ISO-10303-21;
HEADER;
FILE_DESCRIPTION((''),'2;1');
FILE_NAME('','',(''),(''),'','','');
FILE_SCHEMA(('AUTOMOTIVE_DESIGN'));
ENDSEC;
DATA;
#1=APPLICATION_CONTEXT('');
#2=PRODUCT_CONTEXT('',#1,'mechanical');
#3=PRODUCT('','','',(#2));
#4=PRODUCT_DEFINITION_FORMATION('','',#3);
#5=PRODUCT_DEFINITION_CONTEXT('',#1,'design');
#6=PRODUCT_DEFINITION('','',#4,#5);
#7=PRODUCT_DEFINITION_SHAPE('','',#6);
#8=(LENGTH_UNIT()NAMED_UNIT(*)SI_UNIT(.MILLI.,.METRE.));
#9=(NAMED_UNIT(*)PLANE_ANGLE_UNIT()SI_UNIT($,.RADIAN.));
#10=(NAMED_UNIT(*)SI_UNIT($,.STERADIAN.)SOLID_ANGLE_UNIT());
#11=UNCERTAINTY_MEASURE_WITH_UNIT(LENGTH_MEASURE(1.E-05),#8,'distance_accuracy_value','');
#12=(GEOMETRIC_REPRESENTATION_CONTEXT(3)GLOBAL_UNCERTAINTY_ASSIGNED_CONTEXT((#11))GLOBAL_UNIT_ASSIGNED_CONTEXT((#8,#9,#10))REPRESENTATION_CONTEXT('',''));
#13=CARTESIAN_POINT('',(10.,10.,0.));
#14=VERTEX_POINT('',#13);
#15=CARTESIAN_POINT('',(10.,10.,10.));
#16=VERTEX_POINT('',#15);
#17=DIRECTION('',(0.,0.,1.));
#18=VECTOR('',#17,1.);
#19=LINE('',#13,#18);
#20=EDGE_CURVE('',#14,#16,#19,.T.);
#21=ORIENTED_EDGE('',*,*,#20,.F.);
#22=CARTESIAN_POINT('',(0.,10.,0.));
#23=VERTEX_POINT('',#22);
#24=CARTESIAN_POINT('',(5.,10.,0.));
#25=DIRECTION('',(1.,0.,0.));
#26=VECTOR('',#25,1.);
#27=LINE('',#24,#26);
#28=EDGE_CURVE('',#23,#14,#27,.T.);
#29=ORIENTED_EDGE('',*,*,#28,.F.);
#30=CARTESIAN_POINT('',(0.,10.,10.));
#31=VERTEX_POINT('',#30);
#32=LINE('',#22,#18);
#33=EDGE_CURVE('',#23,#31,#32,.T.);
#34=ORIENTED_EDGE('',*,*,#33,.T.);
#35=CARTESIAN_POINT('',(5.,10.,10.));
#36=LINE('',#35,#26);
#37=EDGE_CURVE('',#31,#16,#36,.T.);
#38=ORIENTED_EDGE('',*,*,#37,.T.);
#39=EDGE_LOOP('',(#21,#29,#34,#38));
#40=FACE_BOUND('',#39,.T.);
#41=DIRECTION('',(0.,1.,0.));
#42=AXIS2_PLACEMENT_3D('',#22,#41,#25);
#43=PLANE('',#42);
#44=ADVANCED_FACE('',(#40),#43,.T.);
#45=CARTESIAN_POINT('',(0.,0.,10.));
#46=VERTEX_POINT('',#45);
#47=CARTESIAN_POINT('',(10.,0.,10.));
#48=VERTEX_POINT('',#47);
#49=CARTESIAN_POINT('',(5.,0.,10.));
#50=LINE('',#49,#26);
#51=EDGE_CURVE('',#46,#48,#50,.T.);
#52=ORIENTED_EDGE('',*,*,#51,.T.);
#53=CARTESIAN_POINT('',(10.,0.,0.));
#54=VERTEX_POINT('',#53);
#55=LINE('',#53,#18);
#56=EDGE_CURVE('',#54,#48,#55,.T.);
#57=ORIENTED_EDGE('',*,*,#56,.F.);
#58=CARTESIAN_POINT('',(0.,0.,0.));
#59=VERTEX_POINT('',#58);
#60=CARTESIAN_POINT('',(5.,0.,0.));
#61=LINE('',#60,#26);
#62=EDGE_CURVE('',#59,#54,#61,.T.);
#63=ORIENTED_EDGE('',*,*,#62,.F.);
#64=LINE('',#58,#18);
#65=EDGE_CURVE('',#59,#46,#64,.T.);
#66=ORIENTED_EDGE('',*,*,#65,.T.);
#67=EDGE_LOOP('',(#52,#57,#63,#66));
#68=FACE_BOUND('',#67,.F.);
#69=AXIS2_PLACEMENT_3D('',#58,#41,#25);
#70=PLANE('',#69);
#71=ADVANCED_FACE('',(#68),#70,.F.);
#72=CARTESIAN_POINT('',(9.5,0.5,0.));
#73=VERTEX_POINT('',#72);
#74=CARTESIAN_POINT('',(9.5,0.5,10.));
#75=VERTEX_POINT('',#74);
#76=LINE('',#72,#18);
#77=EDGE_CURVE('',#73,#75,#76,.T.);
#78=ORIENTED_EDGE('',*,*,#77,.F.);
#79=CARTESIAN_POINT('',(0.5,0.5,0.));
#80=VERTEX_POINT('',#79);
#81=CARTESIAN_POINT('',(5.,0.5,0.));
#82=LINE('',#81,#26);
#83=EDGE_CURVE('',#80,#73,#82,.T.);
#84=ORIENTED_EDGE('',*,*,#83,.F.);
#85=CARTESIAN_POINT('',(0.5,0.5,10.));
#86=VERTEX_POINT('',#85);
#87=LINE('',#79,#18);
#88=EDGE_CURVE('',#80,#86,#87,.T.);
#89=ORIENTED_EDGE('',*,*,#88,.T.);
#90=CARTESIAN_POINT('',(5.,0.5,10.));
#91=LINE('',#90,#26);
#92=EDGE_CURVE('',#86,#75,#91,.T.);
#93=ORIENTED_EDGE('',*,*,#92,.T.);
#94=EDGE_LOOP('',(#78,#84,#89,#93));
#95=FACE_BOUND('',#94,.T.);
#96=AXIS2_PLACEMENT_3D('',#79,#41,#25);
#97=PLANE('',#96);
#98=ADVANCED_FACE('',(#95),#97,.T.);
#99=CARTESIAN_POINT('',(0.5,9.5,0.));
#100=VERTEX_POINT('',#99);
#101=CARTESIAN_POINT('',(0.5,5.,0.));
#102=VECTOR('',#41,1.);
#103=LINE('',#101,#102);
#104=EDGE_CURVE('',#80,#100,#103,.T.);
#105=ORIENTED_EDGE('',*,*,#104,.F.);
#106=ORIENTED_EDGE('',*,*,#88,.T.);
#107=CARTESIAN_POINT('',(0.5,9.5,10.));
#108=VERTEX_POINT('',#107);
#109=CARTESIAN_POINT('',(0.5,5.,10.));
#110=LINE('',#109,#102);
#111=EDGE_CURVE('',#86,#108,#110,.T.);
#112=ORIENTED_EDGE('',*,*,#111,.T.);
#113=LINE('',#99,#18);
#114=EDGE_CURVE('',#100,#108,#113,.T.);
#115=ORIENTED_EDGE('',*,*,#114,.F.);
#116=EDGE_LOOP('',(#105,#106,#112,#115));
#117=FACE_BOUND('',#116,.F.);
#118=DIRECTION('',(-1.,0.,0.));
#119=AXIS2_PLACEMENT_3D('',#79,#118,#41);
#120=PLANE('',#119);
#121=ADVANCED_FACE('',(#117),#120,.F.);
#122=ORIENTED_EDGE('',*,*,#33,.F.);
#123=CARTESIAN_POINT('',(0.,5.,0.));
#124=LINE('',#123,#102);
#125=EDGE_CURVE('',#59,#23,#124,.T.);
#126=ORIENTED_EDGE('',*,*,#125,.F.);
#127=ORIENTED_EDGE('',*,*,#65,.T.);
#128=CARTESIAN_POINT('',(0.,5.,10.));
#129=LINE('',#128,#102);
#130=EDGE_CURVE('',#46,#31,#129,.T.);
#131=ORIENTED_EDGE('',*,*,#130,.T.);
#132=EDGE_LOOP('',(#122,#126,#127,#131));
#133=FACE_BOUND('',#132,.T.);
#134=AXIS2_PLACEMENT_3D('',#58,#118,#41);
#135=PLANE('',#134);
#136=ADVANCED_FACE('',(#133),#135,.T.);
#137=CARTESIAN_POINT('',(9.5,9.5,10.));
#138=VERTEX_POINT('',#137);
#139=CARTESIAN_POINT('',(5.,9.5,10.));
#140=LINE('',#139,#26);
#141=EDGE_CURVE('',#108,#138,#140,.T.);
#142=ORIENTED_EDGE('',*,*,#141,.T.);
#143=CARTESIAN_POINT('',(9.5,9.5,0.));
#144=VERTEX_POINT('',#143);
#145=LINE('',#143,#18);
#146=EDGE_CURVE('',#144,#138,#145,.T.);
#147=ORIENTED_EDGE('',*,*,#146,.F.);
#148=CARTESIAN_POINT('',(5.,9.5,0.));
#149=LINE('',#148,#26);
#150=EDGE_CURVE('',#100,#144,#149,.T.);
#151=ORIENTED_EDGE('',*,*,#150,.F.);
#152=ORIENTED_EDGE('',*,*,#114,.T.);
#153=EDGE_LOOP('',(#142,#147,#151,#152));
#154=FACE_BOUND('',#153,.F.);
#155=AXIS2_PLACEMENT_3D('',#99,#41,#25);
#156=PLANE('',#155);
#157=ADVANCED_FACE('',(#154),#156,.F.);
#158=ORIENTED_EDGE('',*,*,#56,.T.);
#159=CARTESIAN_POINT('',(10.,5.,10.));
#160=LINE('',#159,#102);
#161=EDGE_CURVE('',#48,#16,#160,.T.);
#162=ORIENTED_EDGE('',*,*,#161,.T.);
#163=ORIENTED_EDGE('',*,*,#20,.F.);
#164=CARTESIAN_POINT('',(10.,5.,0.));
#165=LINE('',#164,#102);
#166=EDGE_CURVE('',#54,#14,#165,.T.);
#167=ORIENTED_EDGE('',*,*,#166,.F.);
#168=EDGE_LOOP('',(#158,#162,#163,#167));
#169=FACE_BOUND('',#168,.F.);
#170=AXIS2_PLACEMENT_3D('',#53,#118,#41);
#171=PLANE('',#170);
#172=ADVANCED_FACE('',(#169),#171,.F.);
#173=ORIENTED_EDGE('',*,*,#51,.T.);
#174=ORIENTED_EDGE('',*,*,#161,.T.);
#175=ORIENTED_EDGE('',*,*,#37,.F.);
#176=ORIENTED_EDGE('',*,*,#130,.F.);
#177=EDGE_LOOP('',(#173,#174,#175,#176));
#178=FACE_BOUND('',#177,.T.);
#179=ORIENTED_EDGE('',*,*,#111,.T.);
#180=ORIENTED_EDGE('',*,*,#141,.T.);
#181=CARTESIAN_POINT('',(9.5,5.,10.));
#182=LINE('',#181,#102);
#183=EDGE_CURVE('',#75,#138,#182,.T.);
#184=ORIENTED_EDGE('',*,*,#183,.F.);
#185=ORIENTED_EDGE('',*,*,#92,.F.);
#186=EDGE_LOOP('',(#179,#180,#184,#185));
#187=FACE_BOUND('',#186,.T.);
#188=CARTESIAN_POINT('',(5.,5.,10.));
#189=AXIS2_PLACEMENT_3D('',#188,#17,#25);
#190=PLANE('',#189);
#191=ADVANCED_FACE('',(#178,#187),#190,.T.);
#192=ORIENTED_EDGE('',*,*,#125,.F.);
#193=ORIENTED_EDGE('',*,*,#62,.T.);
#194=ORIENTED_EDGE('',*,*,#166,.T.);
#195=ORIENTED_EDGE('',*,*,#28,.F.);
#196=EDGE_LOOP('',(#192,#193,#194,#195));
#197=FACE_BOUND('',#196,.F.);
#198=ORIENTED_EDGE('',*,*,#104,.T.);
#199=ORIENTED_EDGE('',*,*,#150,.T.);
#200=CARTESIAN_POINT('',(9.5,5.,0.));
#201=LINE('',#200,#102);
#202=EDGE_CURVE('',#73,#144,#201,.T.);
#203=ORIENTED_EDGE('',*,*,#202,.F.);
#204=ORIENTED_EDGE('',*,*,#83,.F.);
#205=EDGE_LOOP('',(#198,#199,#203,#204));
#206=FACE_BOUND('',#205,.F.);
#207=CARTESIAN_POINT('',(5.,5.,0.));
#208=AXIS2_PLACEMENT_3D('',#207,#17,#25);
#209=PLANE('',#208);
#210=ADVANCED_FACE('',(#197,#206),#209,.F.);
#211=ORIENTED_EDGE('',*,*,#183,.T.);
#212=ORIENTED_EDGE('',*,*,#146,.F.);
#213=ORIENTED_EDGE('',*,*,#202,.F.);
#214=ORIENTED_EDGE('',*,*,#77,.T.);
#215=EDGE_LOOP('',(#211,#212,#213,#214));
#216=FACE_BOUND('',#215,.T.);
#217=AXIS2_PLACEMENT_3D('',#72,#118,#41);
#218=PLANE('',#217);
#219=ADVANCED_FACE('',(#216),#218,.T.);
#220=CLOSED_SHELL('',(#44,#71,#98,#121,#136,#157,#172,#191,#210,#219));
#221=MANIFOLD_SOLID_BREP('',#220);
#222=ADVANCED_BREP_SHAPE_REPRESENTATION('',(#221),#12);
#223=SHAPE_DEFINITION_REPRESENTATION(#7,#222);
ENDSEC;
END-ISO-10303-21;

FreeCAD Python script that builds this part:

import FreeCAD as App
import Part
import Sketcher

V = App.Vector


def add_polygon(sketch, points):
    """Adds a closed chain of lines whose ends are joined by coincident constraints."""
    first, n = sketch.GeometryCount, len(points)
    for a, b in zip(points, points[1:] + points[:1]):
        sketch.addGeometry(Part.LineSegment(App.Vector(*a, 0), App.Vector(*b, 0)), False)
    for i in range(n):
        sketch.addConstraint(Sketcher.Constraint("Coincident", first + i, 2, first + (i + 1) % n, 1))

doc = App.newDocument("Part")
params = doc.addObject("Spreadsheet::Sheet", "Params")
for row, (alias, value) in enumerate([
    ("sketch1_width", "9 mm"),
    ("pad1_length", "10 mm"),
    ("sketch2_width", "10 mm"),
    ("pad2_length", "10 mm"),
], start=1):
    params.set(f"A{row}", alias)
    params.set(f"B{row}", "=" + value)
    params.setAlias(f"B{row}", alias)

body = doc.addObject("PartDesign::Body", "Body")

sketch1 = body.newObject("Sketcher::SketchObject", "Sketch")
sketch1.AttachmentSupport = (doc.getObject("XY_Plane"), [""])
sketch1.MapMode = "FlatFace"
add_polygon(sketch1, [(0, 10), (0, 0), (10, 0), (10, 10)])
sketch1.addConstraint(Sketcher.Constraint("Vertical", 0))
sketch1.addConstraint(Sketcher.Constraint("Horizontal", 1))
sketch1.addConstraint(Sketcher.Constraint("Vertical", 2))
sketch1.addConstraint(Sketcher.Constraint("Horizontal", 3))
sketch1.addConstraint(Sketcher.Constraint("Equal", 3, 0))
sketch1.addConstraint(Sketcher.Constraint("DistanceX", 1, 1, 1, 2, 9.0))
sketch1.addConstraint(Sketcher.Constraint("DistanceX", -1, 1, 0, 2, 0.5))
sketch1.addConstraint(Sketcher.Constraint("DistanceY", -1, 1, 0, 2, 0.5))
sketch1.setExpression("Constraints[9]", "Params.sketch1_width")
pad1 = body.newObject("PartDesign::Pad", "Pad")
pad1.Profile = sketch1
pad1.setExpression("Length", "Params.pad1_length")
body2 = doc.addObject("PartDesign::Body", "Body001")

sketch2 = body2.newObject("Sketcher::SketchObject", "Sketch001")
sketch2.AttachmentSupport = (doc.getObject("XY_Plane001"), [""])
sketch2.MapMode = "FlatFace"
add_polygon(sketch2, [(0, 10), (0, 0), (10, 0), (10, 10)])
sketch2.addConstraint(Sketcher.Constraint("Vertical", 0))
sketch2.addConstraint(Sketcher.Constraint("Horizontal", 1))
sketch2.addConstraint(Sketcher.Constraint("Vertical", 2))
sketch2.addConstraint(Sketcher.Constraint("Horizontal", 3))
sketch2.addConstraint(Sketcher.Constraint("Coincident", 0, 2, -1, 1))
sketch2.addConstraint(Sketcher.Constraint("Equal", 3, 0))
sketch2.addConstraint(Sketcher.Constraint("DistanceX", 1, 1, 1, 2, 10.0))
sketch2.setExpression("Constraints[10]", "Params.sketch2_width")
pad2 = body2.newObject("PartDesign::Pad", "Pad001")
pad2.Profile = sketch2
pad2.setExpression("Length", "Params.pad2_length")
doc.recompute()

boolean = body2.newObject("PartDesign::Boolean", "Boolean")
boolean.Type = "Cut"
boolean.addObjects([body])

doc.recompute()
